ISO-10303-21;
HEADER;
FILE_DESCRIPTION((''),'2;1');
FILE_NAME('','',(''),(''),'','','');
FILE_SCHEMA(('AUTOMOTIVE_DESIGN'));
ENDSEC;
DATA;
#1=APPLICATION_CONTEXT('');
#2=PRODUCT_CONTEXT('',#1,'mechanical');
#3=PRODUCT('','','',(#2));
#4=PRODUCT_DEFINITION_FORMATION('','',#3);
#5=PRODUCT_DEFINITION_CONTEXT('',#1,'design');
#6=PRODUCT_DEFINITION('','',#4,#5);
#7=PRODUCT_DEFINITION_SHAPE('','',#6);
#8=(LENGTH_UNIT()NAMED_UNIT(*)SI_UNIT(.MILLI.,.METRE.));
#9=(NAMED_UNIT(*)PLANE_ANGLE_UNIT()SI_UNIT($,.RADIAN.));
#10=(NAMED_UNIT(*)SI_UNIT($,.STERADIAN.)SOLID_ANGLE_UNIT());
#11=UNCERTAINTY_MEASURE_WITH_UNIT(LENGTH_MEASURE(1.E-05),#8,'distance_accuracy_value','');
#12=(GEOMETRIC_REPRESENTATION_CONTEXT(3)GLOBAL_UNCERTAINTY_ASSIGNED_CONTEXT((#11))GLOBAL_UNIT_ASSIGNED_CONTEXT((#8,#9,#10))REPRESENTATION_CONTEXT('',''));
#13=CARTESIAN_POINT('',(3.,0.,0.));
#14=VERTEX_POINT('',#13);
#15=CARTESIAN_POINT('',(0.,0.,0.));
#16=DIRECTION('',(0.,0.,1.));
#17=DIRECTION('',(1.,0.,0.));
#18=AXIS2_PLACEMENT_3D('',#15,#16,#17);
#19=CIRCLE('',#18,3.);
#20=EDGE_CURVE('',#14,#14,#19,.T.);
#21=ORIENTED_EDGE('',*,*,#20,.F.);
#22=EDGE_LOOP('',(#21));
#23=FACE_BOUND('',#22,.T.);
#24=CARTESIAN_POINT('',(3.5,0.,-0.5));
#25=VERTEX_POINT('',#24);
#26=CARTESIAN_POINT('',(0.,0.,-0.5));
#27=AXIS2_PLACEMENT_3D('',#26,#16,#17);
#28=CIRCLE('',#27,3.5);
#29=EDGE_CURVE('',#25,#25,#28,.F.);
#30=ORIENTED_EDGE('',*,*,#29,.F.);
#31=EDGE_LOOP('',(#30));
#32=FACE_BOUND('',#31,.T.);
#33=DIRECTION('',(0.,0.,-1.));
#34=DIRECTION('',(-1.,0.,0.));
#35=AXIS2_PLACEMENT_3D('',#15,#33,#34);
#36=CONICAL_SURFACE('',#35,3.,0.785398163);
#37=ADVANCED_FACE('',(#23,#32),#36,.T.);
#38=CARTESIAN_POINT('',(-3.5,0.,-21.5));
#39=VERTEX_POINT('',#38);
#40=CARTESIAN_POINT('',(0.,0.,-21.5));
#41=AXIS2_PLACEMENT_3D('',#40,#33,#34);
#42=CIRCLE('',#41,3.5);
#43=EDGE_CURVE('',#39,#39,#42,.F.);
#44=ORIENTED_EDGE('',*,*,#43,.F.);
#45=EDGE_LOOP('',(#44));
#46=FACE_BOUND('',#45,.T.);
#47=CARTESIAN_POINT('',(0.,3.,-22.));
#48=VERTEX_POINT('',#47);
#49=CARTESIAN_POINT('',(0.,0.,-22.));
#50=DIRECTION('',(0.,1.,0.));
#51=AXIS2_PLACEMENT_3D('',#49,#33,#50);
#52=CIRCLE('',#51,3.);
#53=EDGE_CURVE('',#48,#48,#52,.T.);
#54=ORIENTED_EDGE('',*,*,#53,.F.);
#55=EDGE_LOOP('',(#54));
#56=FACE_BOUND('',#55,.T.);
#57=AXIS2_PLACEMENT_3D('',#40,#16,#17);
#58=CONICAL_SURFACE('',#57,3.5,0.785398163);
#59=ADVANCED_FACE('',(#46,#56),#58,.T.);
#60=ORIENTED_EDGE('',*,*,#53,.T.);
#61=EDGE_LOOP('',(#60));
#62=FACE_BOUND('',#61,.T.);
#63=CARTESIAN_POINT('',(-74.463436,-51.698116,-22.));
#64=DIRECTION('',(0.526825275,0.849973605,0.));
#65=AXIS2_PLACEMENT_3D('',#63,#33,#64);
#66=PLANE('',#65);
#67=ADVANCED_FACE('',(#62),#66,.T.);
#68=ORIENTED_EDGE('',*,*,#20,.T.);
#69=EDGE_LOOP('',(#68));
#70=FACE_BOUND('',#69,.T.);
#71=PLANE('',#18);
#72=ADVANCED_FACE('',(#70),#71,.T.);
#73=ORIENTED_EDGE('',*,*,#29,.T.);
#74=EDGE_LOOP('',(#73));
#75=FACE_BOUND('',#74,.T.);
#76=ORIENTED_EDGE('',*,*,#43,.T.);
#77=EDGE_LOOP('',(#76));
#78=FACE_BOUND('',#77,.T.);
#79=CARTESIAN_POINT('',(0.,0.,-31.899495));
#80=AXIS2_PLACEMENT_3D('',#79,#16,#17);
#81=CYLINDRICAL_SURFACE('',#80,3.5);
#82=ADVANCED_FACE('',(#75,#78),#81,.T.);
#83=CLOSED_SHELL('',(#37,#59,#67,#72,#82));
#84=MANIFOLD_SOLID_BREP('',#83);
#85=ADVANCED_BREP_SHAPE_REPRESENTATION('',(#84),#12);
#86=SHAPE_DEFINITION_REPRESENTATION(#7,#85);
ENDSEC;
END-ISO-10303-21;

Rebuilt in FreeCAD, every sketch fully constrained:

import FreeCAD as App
import Part
import Sketcher

V = App.Vector
Q = App.Units.Quantity


def edges_at(feature, points):
    """Names of the edges that pass closest to the given points."""
    edges = feature.Shape.Edges
    near = lambda p: min(range(len(edges)), key=lambda i: edges[i].distToShape(Part.Vertex(*p))[0])
    return sorted({f"Edge{near(p) + 1}" for p in points})

doc = App.newDocument("Part")
body = doc.addObject("PartDesign::Body", "Body")

# Sketch on XY plane
sketch1 = body.newObject("Sketcher::SketchObject", "Sketch")
sketch1.AttachmentSupport = (doc.getObject("XY_Plane"), [""])
sketch1.MapMode = "FlatFace"
sketch1.AttachmentOffset = App.Placement(V(0, 0, -22), App.Rotation())
sketch1.addGeometry(Part.Circle(V(0, 0, 0), V(0, 0, 1), 3.5), False)
sketch1.addConstraint(Sketcher.Constraint("Coincident", 0, 3, -1, 1))
sketch1.addConstraint(Sketcher.Constraint("Diameter", 0, Q("7 mm")))
pad1 = body.newObject("PartDesign::Pad", "Pad")
pad1.Profile = sketch1
pad1.Length = 22
doc.recompute()

chamfer = body.newObject("PartDesign::Chamfer", "Chamfer")
chamfer.Base = (pad1, edges_at(pad1, [(-3.5, 0, 0), (-3.5, 0, -22)]))
chamfer.Size = 0.5

doc.recompute()
